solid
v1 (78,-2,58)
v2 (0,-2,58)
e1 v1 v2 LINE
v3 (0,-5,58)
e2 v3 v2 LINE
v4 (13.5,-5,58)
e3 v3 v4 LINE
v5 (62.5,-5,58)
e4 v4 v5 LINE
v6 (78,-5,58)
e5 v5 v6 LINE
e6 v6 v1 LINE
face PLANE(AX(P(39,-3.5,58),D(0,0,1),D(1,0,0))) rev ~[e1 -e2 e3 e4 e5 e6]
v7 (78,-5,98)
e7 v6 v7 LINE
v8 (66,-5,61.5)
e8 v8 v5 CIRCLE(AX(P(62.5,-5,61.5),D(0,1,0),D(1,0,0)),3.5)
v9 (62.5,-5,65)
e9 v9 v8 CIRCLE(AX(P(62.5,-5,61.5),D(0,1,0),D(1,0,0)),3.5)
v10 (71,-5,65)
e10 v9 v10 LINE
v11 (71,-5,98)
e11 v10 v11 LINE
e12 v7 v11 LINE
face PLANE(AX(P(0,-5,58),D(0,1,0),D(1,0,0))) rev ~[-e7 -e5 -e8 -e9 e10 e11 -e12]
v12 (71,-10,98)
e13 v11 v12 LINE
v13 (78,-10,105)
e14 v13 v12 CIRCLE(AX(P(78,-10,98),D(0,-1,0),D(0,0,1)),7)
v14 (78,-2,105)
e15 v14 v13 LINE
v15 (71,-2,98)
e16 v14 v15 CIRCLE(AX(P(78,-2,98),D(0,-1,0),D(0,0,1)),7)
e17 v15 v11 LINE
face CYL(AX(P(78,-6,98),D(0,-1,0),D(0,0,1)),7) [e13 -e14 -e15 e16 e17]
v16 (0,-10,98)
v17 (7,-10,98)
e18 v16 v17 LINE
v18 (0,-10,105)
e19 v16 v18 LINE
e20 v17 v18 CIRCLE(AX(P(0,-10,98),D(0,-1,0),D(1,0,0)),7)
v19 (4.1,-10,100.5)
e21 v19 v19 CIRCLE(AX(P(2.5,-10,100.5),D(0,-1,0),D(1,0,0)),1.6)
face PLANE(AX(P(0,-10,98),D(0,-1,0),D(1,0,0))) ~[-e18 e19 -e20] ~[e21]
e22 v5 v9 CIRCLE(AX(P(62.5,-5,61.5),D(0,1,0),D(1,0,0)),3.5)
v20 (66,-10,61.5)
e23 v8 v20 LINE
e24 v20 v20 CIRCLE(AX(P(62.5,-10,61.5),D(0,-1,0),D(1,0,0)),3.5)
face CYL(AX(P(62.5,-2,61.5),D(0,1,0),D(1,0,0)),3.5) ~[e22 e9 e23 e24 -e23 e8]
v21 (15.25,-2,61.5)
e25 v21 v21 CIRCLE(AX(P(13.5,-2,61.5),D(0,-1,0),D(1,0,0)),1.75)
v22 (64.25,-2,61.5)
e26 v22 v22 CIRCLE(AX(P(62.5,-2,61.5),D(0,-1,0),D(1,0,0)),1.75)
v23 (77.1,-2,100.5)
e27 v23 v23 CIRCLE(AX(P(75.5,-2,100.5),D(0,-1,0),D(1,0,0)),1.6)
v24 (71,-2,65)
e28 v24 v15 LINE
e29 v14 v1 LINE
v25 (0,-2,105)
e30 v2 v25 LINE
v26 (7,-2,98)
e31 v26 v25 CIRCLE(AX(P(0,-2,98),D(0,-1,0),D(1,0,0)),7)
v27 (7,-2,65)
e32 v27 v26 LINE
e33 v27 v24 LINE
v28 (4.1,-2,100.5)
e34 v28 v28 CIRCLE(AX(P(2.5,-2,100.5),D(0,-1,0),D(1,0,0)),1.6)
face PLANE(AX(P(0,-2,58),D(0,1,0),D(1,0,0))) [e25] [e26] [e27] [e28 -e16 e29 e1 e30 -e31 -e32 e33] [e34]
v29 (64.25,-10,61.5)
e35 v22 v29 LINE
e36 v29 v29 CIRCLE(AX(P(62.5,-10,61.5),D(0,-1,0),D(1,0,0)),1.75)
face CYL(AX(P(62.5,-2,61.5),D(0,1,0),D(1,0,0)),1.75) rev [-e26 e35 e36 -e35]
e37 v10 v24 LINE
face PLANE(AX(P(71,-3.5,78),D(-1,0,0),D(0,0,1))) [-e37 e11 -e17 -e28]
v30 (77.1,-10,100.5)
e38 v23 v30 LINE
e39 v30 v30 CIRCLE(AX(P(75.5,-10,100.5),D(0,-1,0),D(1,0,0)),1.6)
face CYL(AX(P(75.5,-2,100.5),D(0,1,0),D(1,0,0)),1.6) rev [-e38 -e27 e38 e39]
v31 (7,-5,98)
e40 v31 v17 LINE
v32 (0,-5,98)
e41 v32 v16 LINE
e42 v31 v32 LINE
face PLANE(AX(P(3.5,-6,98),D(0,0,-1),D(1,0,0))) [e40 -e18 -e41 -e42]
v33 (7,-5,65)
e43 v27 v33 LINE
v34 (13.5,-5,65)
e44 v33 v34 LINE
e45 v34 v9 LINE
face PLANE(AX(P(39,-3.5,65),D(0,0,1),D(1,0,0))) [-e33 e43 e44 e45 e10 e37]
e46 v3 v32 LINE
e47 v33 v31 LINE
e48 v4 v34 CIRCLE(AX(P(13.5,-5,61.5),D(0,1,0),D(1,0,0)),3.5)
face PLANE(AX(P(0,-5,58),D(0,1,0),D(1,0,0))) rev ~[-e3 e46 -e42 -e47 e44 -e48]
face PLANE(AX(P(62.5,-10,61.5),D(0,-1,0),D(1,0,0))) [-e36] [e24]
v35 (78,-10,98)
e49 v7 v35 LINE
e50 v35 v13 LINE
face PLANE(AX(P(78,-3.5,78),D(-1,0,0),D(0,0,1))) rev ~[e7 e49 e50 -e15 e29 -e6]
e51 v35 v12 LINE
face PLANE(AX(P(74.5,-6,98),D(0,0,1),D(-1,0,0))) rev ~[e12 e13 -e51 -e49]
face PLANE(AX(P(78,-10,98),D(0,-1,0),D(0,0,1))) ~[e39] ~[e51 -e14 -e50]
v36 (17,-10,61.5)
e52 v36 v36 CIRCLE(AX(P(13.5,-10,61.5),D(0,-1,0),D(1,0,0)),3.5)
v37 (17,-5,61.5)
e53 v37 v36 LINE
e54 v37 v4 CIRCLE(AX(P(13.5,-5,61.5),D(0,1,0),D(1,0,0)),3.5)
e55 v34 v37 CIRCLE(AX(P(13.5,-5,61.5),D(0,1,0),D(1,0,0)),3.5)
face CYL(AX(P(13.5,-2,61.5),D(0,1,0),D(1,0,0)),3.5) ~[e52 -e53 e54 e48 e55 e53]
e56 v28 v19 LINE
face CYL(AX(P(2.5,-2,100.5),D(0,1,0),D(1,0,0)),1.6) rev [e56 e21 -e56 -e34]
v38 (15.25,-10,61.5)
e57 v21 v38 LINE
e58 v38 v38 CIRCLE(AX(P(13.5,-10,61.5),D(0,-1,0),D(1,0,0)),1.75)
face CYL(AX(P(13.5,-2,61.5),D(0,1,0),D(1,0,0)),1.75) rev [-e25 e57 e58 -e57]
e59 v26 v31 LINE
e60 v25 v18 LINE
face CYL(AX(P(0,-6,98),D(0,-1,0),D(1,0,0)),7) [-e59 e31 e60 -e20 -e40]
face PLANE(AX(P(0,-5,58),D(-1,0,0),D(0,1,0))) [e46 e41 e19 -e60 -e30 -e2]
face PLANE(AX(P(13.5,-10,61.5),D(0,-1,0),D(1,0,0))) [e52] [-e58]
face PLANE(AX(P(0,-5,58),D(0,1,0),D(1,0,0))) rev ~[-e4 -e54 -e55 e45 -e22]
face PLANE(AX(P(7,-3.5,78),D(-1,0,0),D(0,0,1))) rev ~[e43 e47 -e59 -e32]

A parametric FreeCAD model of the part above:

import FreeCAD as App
import Part
import Sketcher
from FreeCAD import Vector
Q = App.Units.Quantity

doc = App.newDocument("Part")
body = doc.addObject("PartDesign::Body", "Body")

sketch1 = body.newObject("Sketcher::SketchObject", "Sketch")
sketch1.AttachmentSupport = (doc.getObject("XZ_Plane"), [""])
sketch1.MapMode = "FlatFace"
sketch1.AttachmentOffset = App.Placement(Vector(0, 0, 2), App.Rotation())
sketch1.addGeometry(Part.Circle(Vector(13.5, 61.5, 0), Vector(0, 0, 1), 1.75), False)
sketch1.addConstraint([
    Sketcher.Constraint("Diameter", 0, Q("3.5 mm")),
    Sketcher.Constraint("DistanceX", -1, 1, 0, 3, Q("13.5 mm")),
    Sketcher.Constraint("DistanceY", -1, 1, 0, 3, Q("61.5 mm")),
])
pad1 = body.newObject("PartDesign::Pad", "Pad")
pad1.Profile = sketch1
pad1.Length = 8
body2 = doc.addObject("PartDesign::Body", "Body001")

sketch2 = body2.newObject("Sketcher::SketchObject", "Sketch001")
sketch2.AttachmentSupport = (doc.getObject("XZ_Plane001"), [""])
sketch2.MapMode = "FlatFace"
sketch2.AttachmentOffset = App.Placement(Vector(0, 0, 2), App.Rotation())
sketch2.addGeometry(Part.Circle(Vector(62.5, 61.5, 0), Vector(0, 0, 1), 1.75), False)
sketch2.addConstraint([
    Sketcher.Constraint("Diameter", 0, Q("3.5 mm")),
    Sketcher.Constraint("DistanceX", -1, 1, 0, 3, Q("62.5 mm")),
    Sketcher.Constraint("DistanceY", -1, 1, 0, 3, Q("61.5 mm")),
])
pad2 = body2.newObject("PartDesign::Pad", "Pad001")
pad2.Profile = sketch2
pad2.Length = 8
body3 = doc.addObject("PartDesign::Body", "Body002")

sketch3 = body3.newObject("Sketcher::SketchObject", "Sketch002")
sketch3.AttachmentSupport = (doc.getObject("XZ_Plane002"), [""])
sketch3.MapMode = "FlatFace"
sketch3.AttachmentOffset = App.Placement(Vector(0, 0, 2), App.Rotation())
sketch3.addGeometry(Part.Circle(Vector(75.5, 100.5, 0), Vector(0, 0, 1), 1.6), False)
sketch3.addConstraint([
    Sketcher.Constraint("Diameter", 0, Q("3.2 mm")),
    Sketcher.Constraint("DistanceX", -1, 1, 0, 3, Q("75.5 mm")),
    Sketcher.Constraint("DistanceY", -1, 1, 0, 3, Q("100.5 mm")),
])
pad3 = body3.newObject("PartDesign::Pad", "Pad002")
pad3.Profile = sketch3
pad3.Length = 8
body4 = doc.addObject("PartDesign::Body", "Body003")
body4.AllowCompound = True

sketch4 = body4.newObject("Sketcher::SketchObject", "Sketch003")
sketch4.AttachmentSupport = (doc.getObject("XZ_Plane003"), [""])
sketch4.MapMode = "FlatFace"
sketch4.AttachmentOffset = App.Placement(Vector(0, 0, 2), App.Rotation())
sketch4.addGeometry(Part.Circle(Vector(2.5, 100.5, 0), Vector(0, 0, 1), 1.6), False)
sketch4.addConstraint([
    Sketcher.Constraint("Diameter", 0, Q("3.2 mm")),
    Sketcher.Constraint("DistanceX", -1, 1, 0, 3, Q("2.5 mm")),
    Sketcher.Constraint("DistanceY", -1, 1, 0, 3, Q("100.5 mm")),
])
pad4 = body4.newObject("PartDesign::Pad", "Pad003")
pad4.Profile = sketch4
pad4.Length = 8
doc.recompute()

boolean = body4.newObject("PartDesign::Boolean", "Boolean")
boolean.Type = "Fuse"
boolean.addObjects([body])
doc.recompute()

boolean2 = body4.newObject("PartDesign::Boolean", "Boolean001")
boolean2.Type = "Fuse"
boolean2.addObjects([body2])
doc.recompute()

boolean3 = body4.newObject("PartDesign::Boolean", "Boolean002")
boolean3.Type = "Fuse"
boolean3.addObjects([body3])
body5 = doc.addObject("PartDesign::Body", "Body004")

sketch5 = body5.newObject("Sketcher::SketchObject", "Sketch004")
sketch5.AttachmentSupport = (doc.getObject("XY_Plane004"), [""])
sketch5.MapMode = "FlatFace"
sketch5.AttachmentOffset = App.Placement(Vector(0, 0, 98), App.Rotation())
sketch5.addGeometry([
    Part.LineSegment(Vector(0, -10, 0), Vector(0, -2, 0)),
    Part.LineSegment(Vector(0, -2, 0), Vector(7, -2, 0)),
    Part.LineSegment(Vector(7, -2, 0), Vector(7, -10, 0)),
    Part.LineSegment(Vector(7, -10, 0), Vector(0, -10, 0)),
], False)
sketch5.addConstraint([
    Sketcher.Constraint("Coincident", 0, 2, 1, 1),
    Sketcher.Constraint("Coincident", 1, 2, 2, 1),
    Sketcher.Constraint("Coincident", 2, 2, 3, 1),
    Sketcher.Constraint("Coincident", 3, 2, 0, 1),
    Sketcher.Constraint("Vertical", 0),
    Sketcher.Constraint("Horizontal", 1),
    Sketcher.Constraint("Vertical", 2),
    Sketcher.Constraint("Horizontal", 3),
    Sketcher.Constraint("PointOnObject", 0, 2, -2),
    Sketcher.Constraint("DistanceX", 1, 1, 1, 2, Q("7 mm")),
    Sketcher.Constraint("DistanceY", 0, 1, 0, 2, Q("8 mm")),
    Sketcher.Constraint("DistanceY", 0, 2, -1, 1, Q("2 mm")),
])
revolution = body5.newObject("PartDesign::Revolution", "Revolution")
revolution.Profile = sketch5
revolution.ReferenceAxis = (sketch5, ["V_Axis"])
revolution.Angle = 90
revolution.Reversed = True
body6 = doc.addObject("PartDesign::Body", "Body005")

sketch6 = body6.newObject("Sketcher::SketchObject", "Sketch005")
sketch6.AttachmentSupport = (doc.getObject("XY_Plane005"), [""])
sketch6.MapMode = "FlatFace"
sketch6.AttachmentOffset = App.Placement(Vector(0, 0, 58), App.Rotation())
sketch6.addGeometry([
    Part.LineSegment(Vector(0, -2, 0), Vector(0, -5, 0)),
    Part.LineSegment(Vector(0, -5, 0), Vector(78, -5, 0)),
    Part.LineSegment(Vector(78, -5, 0), Vector(78, -2, 0)),
    Part.LineSegment(Vector(78, -2, 0), Vector(0, -2, 0)),
], False)
sketch6.addConstraint([
    Sketcher.Constraint("Coincident", 0, 2, 1, 1),
    Sketcher.Constraint("Coincident", 1, 2, 2, 1),
    Sketcher.Constraint("Coincident", 2, 2, 3, 1),
    Sketcher.Constraint("Coincident", 3, 2, 0, 1),
    Sketcher.Constraint("Vertical", 0),
    Sketcher.Constraint("Horizontal", 1),
    Sketcher.Constraint("Vertical", 2),
    Sketcher.Constraint("Horizontal", 3),
    Sketcher.Constraint("PointOnObject", 0, 2, -2),
    Sketcher.Constraint("DistanceX", 1, 1, 1, 2, Q("78 mm")),
    Sketcher.Constraint("DistanceY", 0, 2, 0, 1, Q("3 mm")),
    Sketcher.Constraint("DistanceY", 0, 2, -1, 1, Q("5 mm")),
])
pad5 = body6.newObject("PartDesign::Pad", "Pad004")
pad5.Profile = sketch6
pad5.Length = 7
body7 = doc.addObject("PartDesign::Body", "Body006")

sketch7 = body7.newObject("Sketcher::SketchObject", "Sketch006")
sketch7.AttachmentSupport = (doc.getObject("YZ_Plane006"), [""])
sketch7.MapMode = "FlatFace"
sketch7.AttachmentOffset = App.Placement(Vector(0, 0, 7), App.Rotation())
sketch7.addGeometry([
    Part.LineSegment(Vector(-2, 58, 0), Vector(-5, 58, 0)),
    Part.LineSegment(Vector(-5, 58, 0), Vector(-5, 98, 0)),
    Part.LineSegment(Vector(-5, 98, 0), Vector(-2, 98, 0)),
    Part.LineSegment(Vector(-2, 98, 0), Vector(-2, 58, 0)),
], False)
sketch7.addConstraint([
    Sketcher.Constraint("Coincident", 0, 2, 1, 1),
    Sketcher.Constraint("Coincident", 1, 2, 2, 1),
    Sketcher.Constraint("Coincident", 2, 2, 3, 1),
    Sketcher.Constraint("Coincident", 3, 2, 0, 1),
    Sketcher.Constraint("Horizontal", 0),
    Sketcher.Constraint("Vertical", 1),
    Sketcher.Constraint("Horizontal", 2),
    Sketcher.Constraint("Vertical", 3),
    Sketcher.Constraint("DistanceX", 0, 2, 0, 1, Q("3 mm")),
    Sketcher.Constraint("DistanceY", 1, 1, 1, 2, Q("40 mm")),
    Sketcher.Constraint("DistanceX", 0, 2, -1, 1, Q("5 mm")),
    Sketcher.Constraint("DistanceY", -1, 1, 0, 2, Q("58 mm")),
])
pad6 = body7.newObject("PartDesign::Pad", "Pad005")
pad6.Profile = sketch7
pad6.Length = 7
pad6.Reversed = True
body8 = doc.addObject("PartDesign::Body", "Body007")

sketch8 = body8.newObject("Sketcher::SketchObject", "Sketch007")
sketch8.AttachmentSupport = (doc.getObject("XZ_Plane007"), [""])
sketch8.MapMode = "FlatFace"
sketch8.AttachmentOffset = App.Placement(Vector(0, 0, 2), App.Rotation())
sketch8.addGeometry(Part.Circle(Vector(62.5, 61.5, 0), Vector(0, 0, 1), 3.5), False)
sketch8.addConstraint([
    Sketcher.Constraint("Diameter", 0, Q("7 mm")),
    Sketcher.Constraint("DistanceX", -1, 1, 0, 3, Q("62.5 mm")),
    Sketcher.Constraint("DistanceY", -1, 1, 0, 3, Q("61.5 mm")),
])
pad7 = body8.newObject("PartDesign::Pad", "Pad006")
pad7.Profile = sketch8
pad7.Length = 8
body9 = doc.addObject("PartDesign::Body", "Body008")

sketch9 = body9.newObject("Sketcher::SketchObject", "Sketch008")
sketch9.AttachmentSupport = (doc.getObject("XZ_Plane008"), [""])
sketch9.MapMode = "FlatFace"
sketch9.AttachmentOffset = App.Placement(Vector(0, 0, 2), App.Rotation())
sketch9.addGeometry(Part.Circle(Vector(13.5, 61.5, 0), Vector(0, 0, 1), 3.5), False)
sketch9.addConstraint([
    Sketcher.Constraint("Diameter", 0, Q("7 mm")),
    Sketcher.Constraint("DistanceX", -1, 1, 0, 3, Q("13.5 mm")),
    Sketcher.Constraint("DistanceY", -1, 1, 0, 3, Q("61.5 mm")),
])
pad8 = body9.newObject("PartDesign::Pad", "Pad007")
pad8.Profile = sketch9
pad8.Length = 8
body10 = doc.addObject("PartDesign::Body", "Body009")

sketch10 = body10.newObject("Sketcher::SketchObject", "Sketch009")
sketch10.AttachmentSupport = (doc.getObject("YZ_Plane009"), [""])
sketch10.MapMode = "FlatFace"
sketch10.AttachmentOffset = App.Placement(Vector(0, 0, 78), App.Rotation())
sketch10.addGeometry([
    Part.LineSegment(Vector(-2, 58, 0), Vector(-5, 58, 0)),
    Part.LineSegment(Vector(-5, 58, 0), Vector(-5, 98, 0)),
    Part.LineSegment(Vector(-5, 98, 0), Vector(-2, 98, 0)),
    Part.LineSegment(Vector(-2, 98, 0), Vector(-2, 58, 0)),
], False)
sketch10.addConstraint([
    Sketcher.Constraint("Coincident", 0, 2, 1, 1),
    Sketcher.Constraint("Coincident", 1, 2, 2, 1),
    Sketcher.Constraint("Coincident", 2, 2, 3, 1),
    Sketcher.Constraint("Coincident", 3, 2, 0, 1),
    Sketcher.Constraint("Horizontal", 0),
    Sketcher.Constraint("Vertical", 1),
    Sketcher.Constraint("Horizontal", 2),
    Sketcher.Constraint("Vertical", 3),
    Sketcher.Constraint("DistanceX", 0, 2, 0, 1, Q("3 mm")),
    Sketcher.Constraint("DistanceY", 1, 1, 1, 2, Q("40 mm")),
    Sketcher.Constraint("DistanceX", 0, 2, -1, 1, Q("5 mm")),
    Sketcher.Constraint("DistanceY", -1, 1, 0, 2, Q("58 mm")),
])
pad9 = body10.newObject("PartDesign::Pad", "Pad008")
pad9.Profile = sketch10
pad9.Length = 7
pad9.Reversed = True
doc.recompute()

boolean4 = body10.newObject("PartDesign::Boolean", "Boolean003")
boolean4.Type = "Fuse"
boolean4.addObjects([body6])
doc.recompute()

boolean5 = body10.newObject("PartDesign::Boolean", "Boolean004")
boolean5.Type = "Fuse"
boolean5.addObjects([body7])
doc.recompute()

boolean6 = body10.newObject("PartDesign::Boolean", "Boolean005")
boolean6.Type = "Fuse"
boolean6.addObjects([body8])
doc.recompute()

boolean7 = body10.newObject("PartDesign::Boolean", "Boolean006")
boolean7.Type = "Fuse"
boolean7.addObjects([body9])
body11 = doc.addObject("PartDesign::Body", "Body010")
body11.AllowCompound = True

sketch11 = body11.newObject("Sketcher::SketchObject", "Sketch010")
sketch11.AttachmentSupport = (doc.getObject("YZ_Plane010"), [""])
sketch11.MapMode = "FlatFace"
sketch11.AttachmentOffset = App.Placement(Vector(0, 0, 78), App.Rotation())
sketch11.addGeometry([
    Part.LineSegment(Vector(-10, 98, 0), Vector(-2, 98, 0)),
    Part.LineSegment(Vector(-2, 98, 0), Vector(-2, 105, 0)),
    Part.LineSegment(Vector(-2, 105, 0), Vector(-10, 105, 0)),
    Part.LineSegment(Vector(-10, 105, 0), Vector(-10, 98, 0)),
], False)
sketch11.addGeometry(Part.LineSegment(Vector(-2, 98, 0), Vector(-10, 98, 0)), True)
sketch11.addConstraint([
    Sketcher.Constraint("Coincident", 0, 2, 1, 1),
    Sketcher.Constraint("Coincident", 1, 2, 2, 1),
    Sketcher.Constraint("Coincident", 2, 2, 3, 1),
    Sketcher.Constraint("Coincident", 3, 2, 0, 1),
    Sketcher.Constraint("Horizontal", 0),
    Sketcher.Constraint("Vertical", 1),
    Sketcher.Constraint("Horizontal", 2),
    Sketcher.Constraint("Vertical", 3),
    Sketcher.Constraint("Horizontal", 4),
    Sketcher.Constraint("Coincident", 4, 1, 0, 2),
    Sketcher.Constraint("Vertical", 2, 2, 4, 2),
    Sketcher.Constraint("DistanceX", 0, 1, 0, 2, Q("8 mm")),
    Sketcher.Constraint("DistanceY", 1, 1, 1, 2, Q("7 mm")),
    Sketcher.Constraint("DistanceX", 0, 2, -1, 1, Q("2 mm")),
    Sketcher.Constraint("DistanceY", -1, 1, 0, 2, Q("98 mm")),
])
revolution2 = body11.newObject("PartDesign::Revolution", "Revolution001")
revolution2.Profile = sketch11
revolution2.ReferenceAxis = (sketch11, ["Axis0"])
revolution2.Angle = 90
doc.recompute()

boolean8 = body11.newObject("PartDesign::Boolean", "Boolean007")
boolean8.Type = "Fuse"
boolean8.addObjects([body5])
doc.recompute()

boolean9 = body11.newObject("PartDesign::Boolean", "Boolean008")
boolean9.Type = "Fuse"
boolean9.addObjects([body10])
doc.recompute()

boolean10 = body11.newObject("PartDesign::Boolean", "Boolean009")
boolean10.Type = "Cut"
boolean10.addObjects([body4])

doc.recompute()
